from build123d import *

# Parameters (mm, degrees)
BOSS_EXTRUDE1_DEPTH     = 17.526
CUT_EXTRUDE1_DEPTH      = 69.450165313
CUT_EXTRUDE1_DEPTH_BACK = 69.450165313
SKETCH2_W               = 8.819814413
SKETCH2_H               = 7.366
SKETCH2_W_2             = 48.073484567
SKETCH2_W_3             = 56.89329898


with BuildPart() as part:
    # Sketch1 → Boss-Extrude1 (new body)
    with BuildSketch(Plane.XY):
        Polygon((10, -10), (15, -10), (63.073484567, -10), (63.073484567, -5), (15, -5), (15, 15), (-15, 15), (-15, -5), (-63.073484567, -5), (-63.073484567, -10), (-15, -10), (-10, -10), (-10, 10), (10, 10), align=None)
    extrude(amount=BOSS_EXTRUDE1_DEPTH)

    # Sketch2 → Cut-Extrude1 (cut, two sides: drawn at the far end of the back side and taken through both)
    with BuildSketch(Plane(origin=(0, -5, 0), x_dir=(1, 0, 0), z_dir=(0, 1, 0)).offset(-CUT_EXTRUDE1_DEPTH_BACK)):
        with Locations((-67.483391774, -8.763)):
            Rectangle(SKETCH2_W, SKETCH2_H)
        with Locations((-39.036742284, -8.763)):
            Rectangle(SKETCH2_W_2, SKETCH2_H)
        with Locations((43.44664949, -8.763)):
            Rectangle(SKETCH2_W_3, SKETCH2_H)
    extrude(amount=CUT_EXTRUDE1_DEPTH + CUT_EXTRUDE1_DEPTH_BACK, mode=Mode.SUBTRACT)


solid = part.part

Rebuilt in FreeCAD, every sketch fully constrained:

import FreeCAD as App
import Part
import Sketcher

V = App.Vector


def add_polygon(sketch, points):
    """Adds a closed chain of lines whose ends are joined by coincident constraints."""
    first, n = sketch.GeometryCount, len(points)
    for a, b in zip(points, points[1:] + points[:1]):
        sketch.addGeometry(Part.LineSegment(App.Vector(*a, 0), App.Vector(*b, 0)), False)
    for i in range(n):
        sketch.addConstraint(Sketcher.Constraint("Coincident", first + i, 2, first + (i + 1) % n, 1))

doc = App.newDocument("Part")
body = doc.addObject("PartDesign::Body", "Body")

# Sketch on XY plane
sketch1 = body.newObject("Sketcher::SketchObject", "Sketch")
sketch1.AttachmentSupport = (doc.getObject("XY_Plane"), [""])
sketch1.MapMode = "FlatFace"
add_polygon(sketch1, [(10, -10), (63, -10), (63, -5), (15, -5), (15, 15), (-15, 15), (-15, -5), (-63, -5), (-63, -10), (-10, -10), (-10, 10), (10, 10)])  # lines 0-11
sketch1.addConstraint([
    Sketcher.Constraint("Horizontal", 0),
    Sketcher.Constraint("Vertical", 1),
    Sketcher.Constraint("Horizontal", 2),
    Sketcher.Constraint("Vertical", 3),
    Sketcher.Constraint("Horizontal", 4),
    Sketcher.Constraint("Vertical", 5),
    Sketcher.Constraint("Horizontal", 6),
    Sketcher.Constraint("Vertical", 7),
    Sketcher.Constraint("Horizontal", 8),
    Sketcher.Constraint("Vertical", 9),
    Sketcher.Constraint("Horizontal", 10),
    Sketcher.Constraint("Vertical", 11),
    Sketcher.Constraint("Symmetric", 8, 2, 10, 2, -1, 1),
    Sketcher.Constraint("Symmetric", 2, 2, 5, 2, -2),
    Sketcher.Constraint("Symmetric", 0, 2, 7, 2, -2),
    Sketcher.Constraint("Equal", 10, 3),
    Sketcher.Constraint("Equal", 5, 9),
    Sketcher.Constraint("DistanceX", 4, 2, 4, 1, 30.0),
    Sketcher.Constraint("DistanceX", 10, 1, 10, 2, 20.0),
    Sketcher.Constraint("DistanceY", 1, 1, 1, 2, 5.0),
    Sketcher.Constraint("DistanceX", 0, 1, 0, 2, 53.073485),
])
pad1 = body.newObject("PartDesign::Pad", "Pad")
pad1.Profile = sketch1
pad1.Length = 17.526

# Sketch on XZ plane
sketch2 = body.newObject("Sketcher::SketchObject", "Sketch001")
sketch2.AttachmentSupport = (doc.getObject("XZ_Plane"), [""])
sketch2.MapMode = "FlatFace"
sketch2.AttachmentOffset = App.Placement(V(0, 0, 5), App.Rotation())
add_polygon(sketch2, [(-72, 5), (-72, 12), (-15, 12), (-15, 5)])  # lines 0-3
add_polygon(sketch2, [(15, 5), (15, 12), (72, 12), (72, 5)])  # lines 4-7
sketch2.addConstraint([
    Sketcher.Constraint("Vertical", 0),
    Sketcher.Constraint("Horizontal", 1),
    Sketcher.Constraint("Vertical", 2),
    Sketcher.Constraint("Horizontal", 3),
    Sketcher.Constraint("Vertical", 4),
    Sketcher.Constraint("Horizontal", 5),
    Sketcher.Constraint("Vertical", 6),
    Sketcher.Constraint("Horizontal", 7),
    Sketcher.Constraint("Symmetric", 1, 2, 4, 2, -2),
    Sketcher.Constraint("Symmetric", 3, 2, 6, 2, -2),
    Sketcher.Constraint("DistanceX", 1, 2, -1, 1, 15.0),
    Sketcher.Constraint("DistanceY", 0, 1, 0, 2, 7.366),
    Sketcher.Constraint("DistanceY", -1, 1, 2, 2, 5.08),
    Sketcher.Constraint("DistanceX", 1, 1, 1, 2, 56.893299),
])
pocket1 = body.newObject("PartDesign::Pocket", "Pocket")
pocket1.Profile = sketch2
pocket1.Type = "ThroughAll"
pocket1.Midplane = True

doc.recompute()
